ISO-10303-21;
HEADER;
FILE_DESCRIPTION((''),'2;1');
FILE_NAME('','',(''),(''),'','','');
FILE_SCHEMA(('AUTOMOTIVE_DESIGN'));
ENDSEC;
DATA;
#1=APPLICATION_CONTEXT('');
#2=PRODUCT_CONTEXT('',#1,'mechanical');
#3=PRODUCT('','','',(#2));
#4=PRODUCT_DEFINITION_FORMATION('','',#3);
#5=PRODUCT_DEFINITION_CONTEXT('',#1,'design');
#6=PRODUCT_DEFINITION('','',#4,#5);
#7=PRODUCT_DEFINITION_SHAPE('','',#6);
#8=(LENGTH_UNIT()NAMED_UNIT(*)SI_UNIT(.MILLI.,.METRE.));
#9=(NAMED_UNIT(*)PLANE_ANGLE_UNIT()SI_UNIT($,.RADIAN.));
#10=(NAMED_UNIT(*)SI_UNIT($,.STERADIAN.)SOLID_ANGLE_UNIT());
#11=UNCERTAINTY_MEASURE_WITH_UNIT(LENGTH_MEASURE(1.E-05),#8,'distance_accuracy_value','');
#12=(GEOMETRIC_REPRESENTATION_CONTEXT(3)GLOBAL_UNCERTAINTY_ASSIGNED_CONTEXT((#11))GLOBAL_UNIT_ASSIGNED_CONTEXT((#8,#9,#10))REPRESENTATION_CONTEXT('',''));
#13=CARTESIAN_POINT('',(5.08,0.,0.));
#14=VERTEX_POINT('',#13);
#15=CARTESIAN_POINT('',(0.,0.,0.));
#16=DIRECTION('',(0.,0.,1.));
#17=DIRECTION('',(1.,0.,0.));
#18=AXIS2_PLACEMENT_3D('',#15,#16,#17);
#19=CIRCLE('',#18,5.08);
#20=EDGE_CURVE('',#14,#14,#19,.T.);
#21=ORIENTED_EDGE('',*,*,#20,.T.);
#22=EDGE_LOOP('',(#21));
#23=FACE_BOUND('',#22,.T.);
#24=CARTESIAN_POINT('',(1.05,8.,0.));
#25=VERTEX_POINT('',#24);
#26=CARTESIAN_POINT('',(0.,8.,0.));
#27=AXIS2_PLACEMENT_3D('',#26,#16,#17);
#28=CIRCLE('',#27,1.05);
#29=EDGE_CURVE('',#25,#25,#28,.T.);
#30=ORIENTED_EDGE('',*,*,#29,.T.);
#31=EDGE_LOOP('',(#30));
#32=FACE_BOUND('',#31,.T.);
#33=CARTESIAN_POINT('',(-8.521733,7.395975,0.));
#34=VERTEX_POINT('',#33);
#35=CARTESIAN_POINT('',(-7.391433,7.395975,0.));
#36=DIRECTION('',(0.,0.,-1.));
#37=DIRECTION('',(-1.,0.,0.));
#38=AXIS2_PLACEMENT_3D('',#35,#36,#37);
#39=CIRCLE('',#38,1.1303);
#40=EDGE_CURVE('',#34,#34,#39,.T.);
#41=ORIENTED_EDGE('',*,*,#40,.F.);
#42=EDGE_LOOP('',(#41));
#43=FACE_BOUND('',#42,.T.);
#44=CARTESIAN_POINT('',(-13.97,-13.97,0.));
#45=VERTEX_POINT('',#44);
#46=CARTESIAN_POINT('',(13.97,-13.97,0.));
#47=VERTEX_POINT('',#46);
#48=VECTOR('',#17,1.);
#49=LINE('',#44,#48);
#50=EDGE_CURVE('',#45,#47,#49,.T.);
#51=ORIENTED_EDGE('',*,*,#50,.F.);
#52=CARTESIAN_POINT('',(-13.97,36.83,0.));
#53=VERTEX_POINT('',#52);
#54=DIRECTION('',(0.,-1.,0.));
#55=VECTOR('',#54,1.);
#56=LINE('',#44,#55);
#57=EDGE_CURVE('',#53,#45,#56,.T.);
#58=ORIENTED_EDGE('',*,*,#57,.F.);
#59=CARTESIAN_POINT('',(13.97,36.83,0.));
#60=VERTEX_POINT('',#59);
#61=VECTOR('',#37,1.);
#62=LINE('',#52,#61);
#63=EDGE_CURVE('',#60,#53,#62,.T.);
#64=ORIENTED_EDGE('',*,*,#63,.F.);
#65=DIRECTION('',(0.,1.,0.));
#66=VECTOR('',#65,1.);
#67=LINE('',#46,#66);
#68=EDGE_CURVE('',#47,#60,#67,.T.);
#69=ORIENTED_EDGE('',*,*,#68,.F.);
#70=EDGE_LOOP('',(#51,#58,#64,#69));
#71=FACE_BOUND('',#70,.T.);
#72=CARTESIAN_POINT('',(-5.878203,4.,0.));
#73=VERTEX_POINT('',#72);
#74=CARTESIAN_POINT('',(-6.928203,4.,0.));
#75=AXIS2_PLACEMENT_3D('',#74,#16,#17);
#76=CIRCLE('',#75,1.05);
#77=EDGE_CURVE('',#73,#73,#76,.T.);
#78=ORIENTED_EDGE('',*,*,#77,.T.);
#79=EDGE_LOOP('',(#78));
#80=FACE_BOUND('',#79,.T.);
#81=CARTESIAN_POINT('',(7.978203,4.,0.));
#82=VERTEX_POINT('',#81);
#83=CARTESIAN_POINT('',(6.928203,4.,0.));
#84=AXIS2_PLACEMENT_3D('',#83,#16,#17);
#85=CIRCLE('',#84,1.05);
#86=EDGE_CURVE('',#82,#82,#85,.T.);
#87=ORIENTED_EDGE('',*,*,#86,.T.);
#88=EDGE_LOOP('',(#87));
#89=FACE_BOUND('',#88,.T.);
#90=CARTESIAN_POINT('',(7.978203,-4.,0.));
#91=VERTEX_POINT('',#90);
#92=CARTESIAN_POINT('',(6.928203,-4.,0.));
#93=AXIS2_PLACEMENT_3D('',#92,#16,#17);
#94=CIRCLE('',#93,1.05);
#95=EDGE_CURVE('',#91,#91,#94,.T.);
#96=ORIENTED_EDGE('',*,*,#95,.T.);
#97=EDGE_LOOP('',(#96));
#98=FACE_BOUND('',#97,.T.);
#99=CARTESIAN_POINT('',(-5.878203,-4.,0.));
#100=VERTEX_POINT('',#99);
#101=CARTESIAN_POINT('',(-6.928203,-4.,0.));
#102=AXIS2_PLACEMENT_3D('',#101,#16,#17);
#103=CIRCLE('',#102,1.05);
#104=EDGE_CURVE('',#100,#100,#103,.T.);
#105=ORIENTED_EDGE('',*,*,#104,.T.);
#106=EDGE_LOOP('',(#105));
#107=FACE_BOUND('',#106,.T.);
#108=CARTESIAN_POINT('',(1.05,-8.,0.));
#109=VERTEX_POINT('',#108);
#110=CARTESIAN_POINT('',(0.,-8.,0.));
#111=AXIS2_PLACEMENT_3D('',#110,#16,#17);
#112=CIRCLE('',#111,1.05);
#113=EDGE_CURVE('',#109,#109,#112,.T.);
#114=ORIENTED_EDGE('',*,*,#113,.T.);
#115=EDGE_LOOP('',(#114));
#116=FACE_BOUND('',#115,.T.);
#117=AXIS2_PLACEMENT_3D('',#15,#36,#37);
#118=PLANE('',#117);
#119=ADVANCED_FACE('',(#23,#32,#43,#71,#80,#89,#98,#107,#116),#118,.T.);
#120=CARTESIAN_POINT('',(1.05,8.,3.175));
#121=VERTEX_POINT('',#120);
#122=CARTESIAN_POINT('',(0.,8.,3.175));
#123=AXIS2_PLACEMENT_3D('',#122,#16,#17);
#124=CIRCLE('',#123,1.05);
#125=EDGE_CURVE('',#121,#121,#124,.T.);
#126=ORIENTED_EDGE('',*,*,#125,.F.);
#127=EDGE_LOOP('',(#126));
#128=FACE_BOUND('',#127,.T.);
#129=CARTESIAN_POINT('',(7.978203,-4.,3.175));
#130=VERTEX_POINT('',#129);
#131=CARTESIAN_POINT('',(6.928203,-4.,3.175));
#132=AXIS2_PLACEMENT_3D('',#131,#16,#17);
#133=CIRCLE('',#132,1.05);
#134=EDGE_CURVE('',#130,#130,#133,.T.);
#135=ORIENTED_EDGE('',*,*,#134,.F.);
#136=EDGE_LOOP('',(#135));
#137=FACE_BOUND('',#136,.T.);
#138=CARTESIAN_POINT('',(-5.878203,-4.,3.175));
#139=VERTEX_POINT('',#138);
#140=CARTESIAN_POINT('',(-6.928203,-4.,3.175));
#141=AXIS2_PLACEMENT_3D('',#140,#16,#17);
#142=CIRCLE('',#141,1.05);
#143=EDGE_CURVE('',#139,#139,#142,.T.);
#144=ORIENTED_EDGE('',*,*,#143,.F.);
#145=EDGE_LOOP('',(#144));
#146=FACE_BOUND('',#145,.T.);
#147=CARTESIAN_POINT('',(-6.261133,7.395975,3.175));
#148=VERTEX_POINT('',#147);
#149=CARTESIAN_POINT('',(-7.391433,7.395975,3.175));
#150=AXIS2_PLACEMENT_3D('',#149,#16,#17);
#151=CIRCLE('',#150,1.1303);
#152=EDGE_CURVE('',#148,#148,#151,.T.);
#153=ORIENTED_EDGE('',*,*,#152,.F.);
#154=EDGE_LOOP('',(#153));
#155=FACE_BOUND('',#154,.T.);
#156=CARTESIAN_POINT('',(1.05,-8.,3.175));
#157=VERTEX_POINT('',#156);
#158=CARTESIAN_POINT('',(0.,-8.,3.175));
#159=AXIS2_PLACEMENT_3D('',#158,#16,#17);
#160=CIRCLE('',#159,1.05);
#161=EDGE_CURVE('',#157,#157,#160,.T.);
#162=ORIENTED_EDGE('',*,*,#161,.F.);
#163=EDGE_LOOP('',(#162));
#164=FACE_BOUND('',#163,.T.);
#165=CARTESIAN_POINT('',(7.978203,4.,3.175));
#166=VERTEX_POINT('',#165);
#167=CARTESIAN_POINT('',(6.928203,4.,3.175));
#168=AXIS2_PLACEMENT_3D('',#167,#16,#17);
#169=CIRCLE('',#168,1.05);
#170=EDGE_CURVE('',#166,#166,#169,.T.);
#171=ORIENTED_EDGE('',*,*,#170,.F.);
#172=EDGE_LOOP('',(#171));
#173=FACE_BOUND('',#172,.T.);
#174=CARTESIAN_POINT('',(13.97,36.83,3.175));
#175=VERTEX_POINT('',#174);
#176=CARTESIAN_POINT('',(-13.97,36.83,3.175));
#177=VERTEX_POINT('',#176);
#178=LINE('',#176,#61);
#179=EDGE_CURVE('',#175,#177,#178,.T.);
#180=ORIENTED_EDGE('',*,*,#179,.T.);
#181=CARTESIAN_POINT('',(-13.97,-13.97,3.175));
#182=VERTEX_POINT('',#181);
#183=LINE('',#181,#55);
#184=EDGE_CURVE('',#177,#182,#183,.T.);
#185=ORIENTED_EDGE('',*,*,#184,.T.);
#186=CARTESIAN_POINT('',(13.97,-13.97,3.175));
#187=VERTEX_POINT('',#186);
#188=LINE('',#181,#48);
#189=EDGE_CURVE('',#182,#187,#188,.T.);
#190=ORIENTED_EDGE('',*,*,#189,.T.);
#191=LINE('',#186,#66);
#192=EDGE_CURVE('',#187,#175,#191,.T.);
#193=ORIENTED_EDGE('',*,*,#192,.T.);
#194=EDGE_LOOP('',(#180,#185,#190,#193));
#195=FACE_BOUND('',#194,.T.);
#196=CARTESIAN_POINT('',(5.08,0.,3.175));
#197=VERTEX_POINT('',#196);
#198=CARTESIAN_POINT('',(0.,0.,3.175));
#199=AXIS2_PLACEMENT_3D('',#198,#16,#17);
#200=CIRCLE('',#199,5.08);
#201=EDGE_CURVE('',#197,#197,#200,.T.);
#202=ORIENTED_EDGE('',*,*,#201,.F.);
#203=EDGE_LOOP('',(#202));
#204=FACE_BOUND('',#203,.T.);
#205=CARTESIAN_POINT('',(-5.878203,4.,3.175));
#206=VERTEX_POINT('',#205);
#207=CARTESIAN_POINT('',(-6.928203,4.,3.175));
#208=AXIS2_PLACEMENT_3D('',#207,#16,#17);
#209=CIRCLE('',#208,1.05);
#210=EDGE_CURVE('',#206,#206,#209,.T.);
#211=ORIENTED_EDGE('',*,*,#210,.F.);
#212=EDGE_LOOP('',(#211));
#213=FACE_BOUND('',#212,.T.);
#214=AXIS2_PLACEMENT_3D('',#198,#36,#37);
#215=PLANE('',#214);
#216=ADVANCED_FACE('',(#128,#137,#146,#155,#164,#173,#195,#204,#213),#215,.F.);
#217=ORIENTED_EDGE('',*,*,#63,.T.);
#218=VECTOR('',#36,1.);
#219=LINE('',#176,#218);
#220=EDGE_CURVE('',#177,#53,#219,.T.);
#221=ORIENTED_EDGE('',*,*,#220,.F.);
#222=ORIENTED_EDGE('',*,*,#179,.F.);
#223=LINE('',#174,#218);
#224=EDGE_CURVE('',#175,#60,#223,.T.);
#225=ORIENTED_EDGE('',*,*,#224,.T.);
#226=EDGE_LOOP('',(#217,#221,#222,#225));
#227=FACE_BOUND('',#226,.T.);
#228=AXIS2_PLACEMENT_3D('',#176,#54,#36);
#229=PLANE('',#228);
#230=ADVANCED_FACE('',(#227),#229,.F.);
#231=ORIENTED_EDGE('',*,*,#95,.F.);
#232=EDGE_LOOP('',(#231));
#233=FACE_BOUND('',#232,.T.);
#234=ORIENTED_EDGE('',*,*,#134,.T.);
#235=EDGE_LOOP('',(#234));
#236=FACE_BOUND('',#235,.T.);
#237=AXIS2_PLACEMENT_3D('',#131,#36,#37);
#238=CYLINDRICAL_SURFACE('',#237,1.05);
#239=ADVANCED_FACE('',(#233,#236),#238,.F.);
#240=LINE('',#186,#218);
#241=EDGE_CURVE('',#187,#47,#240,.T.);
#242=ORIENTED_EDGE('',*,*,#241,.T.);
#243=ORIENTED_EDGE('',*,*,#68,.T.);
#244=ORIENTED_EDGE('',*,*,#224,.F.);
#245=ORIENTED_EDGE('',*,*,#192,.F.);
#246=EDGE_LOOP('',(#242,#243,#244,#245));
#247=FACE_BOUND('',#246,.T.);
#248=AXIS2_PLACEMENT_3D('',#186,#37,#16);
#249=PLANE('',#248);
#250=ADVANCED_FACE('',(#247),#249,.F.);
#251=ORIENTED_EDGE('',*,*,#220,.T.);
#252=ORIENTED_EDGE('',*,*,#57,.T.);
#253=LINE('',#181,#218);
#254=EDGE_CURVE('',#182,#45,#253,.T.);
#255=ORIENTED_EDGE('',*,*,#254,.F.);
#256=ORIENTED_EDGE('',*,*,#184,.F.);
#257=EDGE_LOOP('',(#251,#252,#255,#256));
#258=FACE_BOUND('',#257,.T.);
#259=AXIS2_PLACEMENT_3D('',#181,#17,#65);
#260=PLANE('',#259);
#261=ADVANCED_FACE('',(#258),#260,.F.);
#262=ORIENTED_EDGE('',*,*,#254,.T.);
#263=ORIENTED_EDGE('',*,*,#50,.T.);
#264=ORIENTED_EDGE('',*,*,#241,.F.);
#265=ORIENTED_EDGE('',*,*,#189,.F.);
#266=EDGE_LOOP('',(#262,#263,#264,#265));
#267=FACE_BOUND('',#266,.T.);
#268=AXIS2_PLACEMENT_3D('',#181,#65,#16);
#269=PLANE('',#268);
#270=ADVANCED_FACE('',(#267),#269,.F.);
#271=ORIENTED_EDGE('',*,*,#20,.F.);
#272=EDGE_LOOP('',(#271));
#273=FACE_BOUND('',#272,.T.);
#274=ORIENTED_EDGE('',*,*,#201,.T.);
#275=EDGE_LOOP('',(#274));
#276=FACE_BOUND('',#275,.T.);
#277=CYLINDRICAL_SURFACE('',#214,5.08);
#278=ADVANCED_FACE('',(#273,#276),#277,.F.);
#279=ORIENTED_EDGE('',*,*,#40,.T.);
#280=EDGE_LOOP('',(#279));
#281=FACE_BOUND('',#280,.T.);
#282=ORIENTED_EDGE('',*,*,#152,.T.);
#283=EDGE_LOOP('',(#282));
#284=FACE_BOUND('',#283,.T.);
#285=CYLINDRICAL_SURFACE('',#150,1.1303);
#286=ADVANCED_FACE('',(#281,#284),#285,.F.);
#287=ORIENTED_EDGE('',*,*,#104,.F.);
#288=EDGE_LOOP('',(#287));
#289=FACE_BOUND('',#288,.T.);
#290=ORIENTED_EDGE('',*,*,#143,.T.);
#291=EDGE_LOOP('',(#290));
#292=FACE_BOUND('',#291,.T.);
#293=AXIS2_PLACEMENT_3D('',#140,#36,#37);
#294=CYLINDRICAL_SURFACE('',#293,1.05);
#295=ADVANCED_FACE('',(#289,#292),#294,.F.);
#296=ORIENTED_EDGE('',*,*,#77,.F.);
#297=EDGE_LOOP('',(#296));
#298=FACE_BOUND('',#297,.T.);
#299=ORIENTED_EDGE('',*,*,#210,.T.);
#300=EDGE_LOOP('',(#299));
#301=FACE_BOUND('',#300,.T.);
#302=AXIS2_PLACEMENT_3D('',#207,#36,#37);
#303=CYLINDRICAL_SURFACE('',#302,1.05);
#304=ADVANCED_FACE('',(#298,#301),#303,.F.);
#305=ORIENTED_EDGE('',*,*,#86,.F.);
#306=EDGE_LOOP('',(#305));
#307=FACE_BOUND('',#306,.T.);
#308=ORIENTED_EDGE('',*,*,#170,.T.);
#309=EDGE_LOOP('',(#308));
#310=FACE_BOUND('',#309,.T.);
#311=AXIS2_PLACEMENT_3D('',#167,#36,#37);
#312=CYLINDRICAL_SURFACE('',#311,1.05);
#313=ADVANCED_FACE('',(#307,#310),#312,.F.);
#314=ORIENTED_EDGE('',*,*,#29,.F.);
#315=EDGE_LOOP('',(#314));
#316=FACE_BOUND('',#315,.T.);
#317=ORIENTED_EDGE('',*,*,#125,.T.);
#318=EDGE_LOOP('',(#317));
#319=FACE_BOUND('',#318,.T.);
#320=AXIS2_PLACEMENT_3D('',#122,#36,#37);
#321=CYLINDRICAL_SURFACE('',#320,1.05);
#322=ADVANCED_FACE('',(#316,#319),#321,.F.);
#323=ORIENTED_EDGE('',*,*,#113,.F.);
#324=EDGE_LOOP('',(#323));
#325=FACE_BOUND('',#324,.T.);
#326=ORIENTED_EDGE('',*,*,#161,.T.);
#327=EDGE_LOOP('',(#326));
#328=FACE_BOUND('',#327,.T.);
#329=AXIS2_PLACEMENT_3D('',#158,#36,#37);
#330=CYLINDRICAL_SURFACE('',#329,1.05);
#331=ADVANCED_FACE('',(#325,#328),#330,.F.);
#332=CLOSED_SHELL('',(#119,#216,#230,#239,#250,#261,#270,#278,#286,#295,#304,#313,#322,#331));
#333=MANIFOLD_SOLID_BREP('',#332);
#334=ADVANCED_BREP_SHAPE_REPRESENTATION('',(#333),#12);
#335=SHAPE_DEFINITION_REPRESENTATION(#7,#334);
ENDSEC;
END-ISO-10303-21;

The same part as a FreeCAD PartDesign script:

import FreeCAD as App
import Part
import Sketcher
from FreeCAD import Vector
Q = App.Units.Quantity

doc = App.newDocument("Part")
body = doc.addObject("PartDesign::Body", "Body")

# Sketch on XY plane
sketch1 = body.newObject("Sketcher::SketchObject", "Sketch")
sketch1.AttachmentSupport = (doc.getObject("XY_Plane"), [""])
sketch1.MapMode = "FlatFace"
sketch1.addGeometry([
    Part.LineSegment(Vector(-14, 36.8, 0), Vector(-14, -14, 0)),  # 0
    Part.LineSegment(Vector(-14, -14, 0), Vector(14, -14, 0)),  # 1
    Part.LineSegment(Vector(14, -14, 0), Vector(14, 36.8, 0)),  # 2
    Part.LineSegment(Vector(14, 36.8, 0), Vector(-14, 36.8, 0)),  # 3
    Part.Circle(Vector(0, -8, 0), Vector(0, 0, 1), 1.1),  # 4
    Part.Circle(Vector(-6.9, -4, 0), Vector(0, 0, 1), 1.1),  # 5
    Part.Circle(Vector(6.9, -4, 0), Vector(0, 0, 1), 1.1),  # 6
    Part.Circle(Vector(-6.9, 4, 0), Vector(0, 0, 1), 1.1),  # 7
    Part.Circle(Vector(0, 0, 0), Vector(0, 0, 1), 5.1),  # 8
    Part.Circle(Vector(0, 8, 0), Vector(0, 0, 1), 1.1),  # 9
    Part.Circle(Vector(6.9, 4, 0), Vector(0, 0, 1), 1.1),  # 10
], False)
sketch1.addConstraint([
    Sketcher.Constraint("Coincident", 0, 2, 1, 1),
    Sketcher.Constraint("Coincident", 1, 2, 2, 1),
    Sketcher.Constraint("Coincident", 2, 2, 3, 1),
    Sketcher.Constraint("Coincident", 3, 2, 0, 1),
    Sketcher.Constraint("Vertical", 0),
    Sketcher.Constraint("Horizontal", 1),
    Sketcher.Constraint("Vertical", 2),
    Sketcher.Constraint("Horizontal", 3),
    Sketcher.Constraint("Coincident", 8, 3, -1, 1),
    Sketcher.Constraint("Equal", 4, 5),
    Sketcher.Constraint("Equal", 5, 6),
    Sketcher.Constraint("Equal", 6, 7),
    Sketcher.Constraint("Equal", 7, 9),
    Sketcher.Constraint("Equal", 9, 10),
    Sketcher.Constraint("Symmetric", 6, 3, 7, 3, -1, 1),
    Sketcher.Constraint("Symmetric", 4, 3, 9, 3, -1, 1),
    Sketcher.Constraint("Symmetric", 5, 3, 10, 3, -1, 1),
    Sketcher.Constraint("Symmetric", 5, 3, 6, 3, -2),
    Sketcher.Constraint("PointOnObject", 4, 3, -2),
    Sketcher.Constraint("Diameter", 8, Q("0.4 in")),
    Sketcher.Constraint("DistanceY", 0, 2, 0, 1, Q("2 in")),
    Sketcher.Constraint("DistanceX", 1, 1, 1, 2, Q("1.1 in")),
    Sketcher.Constraint("Diameter", 4, Q("2.1 mm")),
    Sketcher.Constraint("DistanceX", 0, 2, -1, 1, Q("0.55 in")),
    Sketcher.Constraint("DistanceY", 0, 2, -1, 1, Q("0.55 in")),
    Sketcher.Constraint("DistanceY", 4, 3, -1, 1, Q("8 mm")),
    Sketcher.Constraint("DistanceY", 5, 3, -1, 1, Q("4 mm")),
    Sketcher.Constraint("DistanceX", 5, 3, -1, 1, Q("6.928203 mm")),
])
pad1 = body.newObject("PartDesign::Pad", "Pad")
pad1.Profile = sketch1
pad1.Length = Q("0.125 in")

# Sketch on XY plane
sketch2 = body.newObject("Sketcher::SketchObject", "Sketch001")
sketch2.AttachmentSupport = (doc.getObject("XY_Plane"), [""])
sketch2.MapMode = "FlatFace"
sketch2.AttachmentOffset = App.Placement(Vector(0, 0, 0.125 * 25.4), App.Rotation())
sketch2.addGeometry(Part.Circle(Vector(-7.4, 7.4, 0), Vector(0, 0, 1), 1.1), False)
sketch2.addConstraint([
    Sketcher.Constraint("Diameter", 0, Q("0.089 in")),
    Sketcher.Constraint("DistanceX", 0, 3, -1, 1, Q("7.391433 mm")),
    Sketcher.Constraint("DistanceY", -1, 1, 0, 3, Q("7.395975 mm")),
])
doc.recompute()
hole = body.newObject("PartDesign::Hole", "Hole")
hole.Profile = sketch2
hole.ThreadType = "None"
hole.Diameter = Q("0.089 in")
hole.DepthType = "Dimension"
hole.Depth = Q("1 in")
hole.DrillPoint = "Angled"
hole.DrillPointAngle = 118

doc.recompute()
